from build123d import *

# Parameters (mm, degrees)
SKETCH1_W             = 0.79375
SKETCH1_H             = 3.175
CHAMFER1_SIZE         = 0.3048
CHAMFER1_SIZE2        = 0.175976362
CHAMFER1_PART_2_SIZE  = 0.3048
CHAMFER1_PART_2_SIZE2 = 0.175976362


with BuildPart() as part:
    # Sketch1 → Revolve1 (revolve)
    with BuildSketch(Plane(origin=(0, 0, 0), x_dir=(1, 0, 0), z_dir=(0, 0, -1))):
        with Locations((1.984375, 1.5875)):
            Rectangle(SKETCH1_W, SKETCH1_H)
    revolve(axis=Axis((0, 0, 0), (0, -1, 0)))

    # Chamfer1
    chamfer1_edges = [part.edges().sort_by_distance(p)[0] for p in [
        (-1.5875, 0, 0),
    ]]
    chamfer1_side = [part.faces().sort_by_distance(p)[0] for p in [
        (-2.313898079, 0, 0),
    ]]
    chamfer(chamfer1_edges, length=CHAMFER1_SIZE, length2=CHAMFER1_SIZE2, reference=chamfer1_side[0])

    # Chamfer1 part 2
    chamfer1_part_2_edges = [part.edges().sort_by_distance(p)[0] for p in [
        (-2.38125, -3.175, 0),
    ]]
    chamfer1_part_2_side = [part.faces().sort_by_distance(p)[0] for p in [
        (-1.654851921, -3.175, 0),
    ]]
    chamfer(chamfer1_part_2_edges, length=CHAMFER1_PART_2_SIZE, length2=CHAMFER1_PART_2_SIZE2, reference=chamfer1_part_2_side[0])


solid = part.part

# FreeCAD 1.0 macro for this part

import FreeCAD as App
import Part
import Sketcher
from FreeCAD import Vector
Q = App.Units.Quantity


def edges_at(feature, points):
    """Names of the edges that pass closest to the given points."""
    edges = feature.Shape.Edges
    near = lambda p: min(range(len(edges)), key=lambda i: edges[i].distToShape(Part.Vertex(*p))[0])
    return sorted({f"Edge{near(p) + 1}" for p in points})

doc = App.newDocument("Part")
body = doc.addObject("PartDesign::Body", "Body")

# Sketch on XY plane
sketch1 = body.newObject("Sketcher::SketchObject", "Sketch")
sketch1.AttachmentSupport = (doc.getObject("XY_Plane"), [""])
sketch1.MapMode = "FlatFace"
sketch1.addGeometry([
    Part.LineSegment(Vector(1.6, -3.2, 0), Vector(1.6, 0, 0)),
    Part.LineSegment(Vector(1.6, 0, 0), Vector(2.4, 0, 0)),
    Part.LineSegment(Vector(2.4, 0, 0), Vector(2.4, -3.2, 0)),
    Part.LineSegment(Vector(2.4, -3.2, 0), Vector(1.6, -3.2, 0)),
], False)
sketch1.addConstraint([
    Sketcher.Constraint("Coincident", 0, 2, 1, 1),
    Sketcher.Constraint("Coincident", 1, 2, 2, 1),
    Sketcher.Constraint("Coincident", 2, 2, 3, 1),
    Sketcher.Constraint("Coincident", 3, 2, 0, 1),
    Sketcher.Constraint("Vertical", 0),
    Sketcher.Constraint("Horizontal", 1),
    Sketcher.Constraint("Vertical", 2),
    Sketcher.Constraint("Horizontal", 3),
    Sketcher.Constraint("PointOnObject", 0, 2, -1),
    Sketcher.Constraint("DistanceX", 1, 1, 1, 2, Q("0.03125 in")),
    Sketcher.Constraint("DistanceY", 0, 1, 0, 2, Q("0.125 in")),
    Sketcher.Constraint("DistanceX", -1, 1, 0, 2, Q("0.0625 in")),
])
revolution = body.newObject("PartDesign::Revolution", "Revolution")
revolution.Profile = sketch1
revolution.ReferenceAxis = (sketch1, ["V_Axis"])
revolution.Angle = 360
doc.recompute()

chamfer = body.newObject("PartDesign::Chamfer", "Chamfer")
chamfer.Base = (revolution, edges_at(revolution, [(-1.587, 0, 0)]))
chamfer.ChamferType = "Two distances"
chamfer.Size = Q("0.012 in")
chamfer.Size2 = 0.175976
chamfer.FlipDirection = True
doc.recompute()

chamfer2 = body.newObject("PartDesign::Chamfer", "Chamfer001")
chamfer2.Base = (chamfer, edges_at(chamfer, [(-2.381, -3.175, 0)]))
chamfer2.ChamferType = "Two distances"
chamfer2.Size = Q("0.012 in")
chamfer2.Size2 = 0.175976

doc.recompute()
